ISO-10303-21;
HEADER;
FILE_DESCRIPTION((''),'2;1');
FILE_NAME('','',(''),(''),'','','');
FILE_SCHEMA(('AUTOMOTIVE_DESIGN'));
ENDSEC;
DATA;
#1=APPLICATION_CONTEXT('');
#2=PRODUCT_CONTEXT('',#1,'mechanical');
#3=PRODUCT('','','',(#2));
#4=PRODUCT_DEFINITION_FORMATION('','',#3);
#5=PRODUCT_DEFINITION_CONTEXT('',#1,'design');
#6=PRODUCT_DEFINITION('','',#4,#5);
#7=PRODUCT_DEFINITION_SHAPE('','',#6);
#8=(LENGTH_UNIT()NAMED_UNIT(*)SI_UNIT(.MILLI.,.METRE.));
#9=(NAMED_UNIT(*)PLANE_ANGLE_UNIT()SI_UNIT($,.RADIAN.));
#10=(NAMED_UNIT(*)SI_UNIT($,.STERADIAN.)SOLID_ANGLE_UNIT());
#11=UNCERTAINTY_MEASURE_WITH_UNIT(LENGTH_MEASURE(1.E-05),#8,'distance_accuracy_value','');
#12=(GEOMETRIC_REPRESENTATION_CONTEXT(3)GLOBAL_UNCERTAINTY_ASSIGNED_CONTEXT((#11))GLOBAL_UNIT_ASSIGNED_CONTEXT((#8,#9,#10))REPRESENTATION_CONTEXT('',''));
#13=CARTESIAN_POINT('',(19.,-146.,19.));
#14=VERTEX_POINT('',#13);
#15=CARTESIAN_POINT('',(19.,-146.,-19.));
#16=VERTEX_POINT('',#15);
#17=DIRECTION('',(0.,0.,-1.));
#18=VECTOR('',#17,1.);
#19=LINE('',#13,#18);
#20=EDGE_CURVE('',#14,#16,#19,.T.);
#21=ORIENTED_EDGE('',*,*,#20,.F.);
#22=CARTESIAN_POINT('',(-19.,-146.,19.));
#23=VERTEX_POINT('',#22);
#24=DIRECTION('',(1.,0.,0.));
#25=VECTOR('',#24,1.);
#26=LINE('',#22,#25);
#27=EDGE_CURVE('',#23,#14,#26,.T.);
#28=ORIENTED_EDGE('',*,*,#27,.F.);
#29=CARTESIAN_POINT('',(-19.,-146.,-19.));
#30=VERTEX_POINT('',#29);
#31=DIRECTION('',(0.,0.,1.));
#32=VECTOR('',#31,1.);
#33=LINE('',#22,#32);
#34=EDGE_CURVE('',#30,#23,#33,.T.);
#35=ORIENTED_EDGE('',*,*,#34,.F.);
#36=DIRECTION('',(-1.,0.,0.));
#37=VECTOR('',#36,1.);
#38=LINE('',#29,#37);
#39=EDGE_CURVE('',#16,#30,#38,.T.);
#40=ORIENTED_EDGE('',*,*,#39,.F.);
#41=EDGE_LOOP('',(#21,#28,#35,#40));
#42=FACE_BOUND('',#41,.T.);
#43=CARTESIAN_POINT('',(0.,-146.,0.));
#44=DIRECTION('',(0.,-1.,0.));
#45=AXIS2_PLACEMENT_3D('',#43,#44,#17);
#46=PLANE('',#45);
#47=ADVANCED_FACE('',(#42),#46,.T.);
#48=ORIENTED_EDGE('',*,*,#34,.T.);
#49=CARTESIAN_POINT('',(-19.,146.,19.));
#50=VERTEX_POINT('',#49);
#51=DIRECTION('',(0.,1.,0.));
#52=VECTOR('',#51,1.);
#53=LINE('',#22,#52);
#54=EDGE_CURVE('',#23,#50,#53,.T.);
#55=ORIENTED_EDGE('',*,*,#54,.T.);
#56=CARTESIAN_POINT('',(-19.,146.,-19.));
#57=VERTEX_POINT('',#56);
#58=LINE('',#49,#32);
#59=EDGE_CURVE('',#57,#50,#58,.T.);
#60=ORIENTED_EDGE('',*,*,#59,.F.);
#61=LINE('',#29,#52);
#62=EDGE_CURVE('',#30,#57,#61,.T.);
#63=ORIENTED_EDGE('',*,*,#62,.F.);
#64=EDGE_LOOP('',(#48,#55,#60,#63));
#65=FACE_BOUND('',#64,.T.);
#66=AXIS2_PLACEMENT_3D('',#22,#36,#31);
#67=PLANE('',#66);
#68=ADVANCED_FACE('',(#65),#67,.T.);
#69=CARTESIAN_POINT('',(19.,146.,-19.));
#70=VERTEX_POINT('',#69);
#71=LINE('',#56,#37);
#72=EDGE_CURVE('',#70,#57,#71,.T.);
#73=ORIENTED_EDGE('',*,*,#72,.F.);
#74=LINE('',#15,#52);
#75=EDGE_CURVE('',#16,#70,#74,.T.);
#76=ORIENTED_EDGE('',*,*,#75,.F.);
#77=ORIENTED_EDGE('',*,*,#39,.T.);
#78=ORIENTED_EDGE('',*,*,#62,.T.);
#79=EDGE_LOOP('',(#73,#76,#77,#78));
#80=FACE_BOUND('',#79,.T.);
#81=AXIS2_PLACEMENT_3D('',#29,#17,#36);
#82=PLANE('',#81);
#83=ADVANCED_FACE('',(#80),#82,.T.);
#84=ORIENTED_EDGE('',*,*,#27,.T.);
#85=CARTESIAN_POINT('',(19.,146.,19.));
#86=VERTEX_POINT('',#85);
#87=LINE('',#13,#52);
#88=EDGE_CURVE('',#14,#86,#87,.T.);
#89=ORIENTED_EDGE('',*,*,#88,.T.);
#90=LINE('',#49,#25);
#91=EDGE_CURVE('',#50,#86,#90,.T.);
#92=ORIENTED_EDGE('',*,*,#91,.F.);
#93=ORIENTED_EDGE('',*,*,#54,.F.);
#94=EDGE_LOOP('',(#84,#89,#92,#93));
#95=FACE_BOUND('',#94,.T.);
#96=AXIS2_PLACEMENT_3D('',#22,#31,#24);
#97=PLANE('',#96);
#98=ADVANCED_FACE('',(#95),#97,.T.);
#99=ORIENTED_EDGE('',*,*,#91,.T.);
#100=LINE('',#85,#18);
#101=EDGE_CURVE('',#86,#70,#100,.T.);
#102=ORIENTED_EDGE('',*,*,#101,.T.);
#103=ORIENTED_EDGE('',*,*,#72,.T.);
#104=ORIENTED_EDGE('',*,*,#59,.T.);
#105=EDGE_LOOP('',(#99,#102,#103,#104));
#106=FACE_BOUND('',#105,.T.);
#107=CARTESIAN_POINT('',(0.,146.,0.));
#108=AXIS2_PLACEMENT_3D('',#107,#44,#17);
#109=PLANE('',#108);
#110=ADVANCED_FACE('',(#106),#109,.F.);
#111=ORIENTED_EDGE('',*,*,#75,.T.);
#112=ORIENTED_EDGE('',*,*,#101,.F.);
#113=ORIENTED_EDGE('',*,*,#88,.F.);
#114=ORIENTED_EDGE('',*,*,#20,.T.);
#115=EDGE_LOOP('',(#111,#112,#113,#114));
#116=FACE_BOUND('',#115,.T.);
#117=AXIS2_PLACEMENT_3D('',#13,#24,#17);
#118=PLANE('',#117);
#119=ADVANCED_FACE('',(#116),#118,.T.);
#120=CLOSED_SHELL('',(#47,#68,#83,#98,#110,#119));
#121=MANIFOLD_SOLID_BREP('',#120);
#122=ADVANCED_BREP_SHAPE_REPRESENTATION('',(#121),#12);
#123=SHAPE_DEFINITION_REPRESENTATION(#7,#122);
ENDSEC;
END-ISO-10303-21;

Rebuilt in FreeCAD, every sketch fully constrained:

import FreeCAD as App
import Part
import Sketcher

V = App.Vector

doc = App.newDocument("Part")
body = doc.addObject("PartDesign::Body", "Body")

sketch1 = body.newObject("Sketcher::SketchObject", "Sketch")
sketch1.AttachmentSupport = (doc.getObject("XZ_Plane"), [""])
sketch1.MapMode = "FlatFace"
sketch1.addGeometry(Part.LineSegment(V(-19, -19, 0), V(-19, 19, 0)), False)
sketch1.addGeometry(Part.LineSegment(V(-19, 19, 0), V(19, 19, 0)), False)
sketch1.addGeometry(Part.LineSegment(V(19, 19, 0), V(19, -19, 0)), False)
sketch1.addGeometry(Part.LineSegment(V(19, -19, 0), V(-19, -19, 0)), False)
sketch1.addConstraint(Sketcher.Constraint("Coincident", 0, 2, 1, 1))
sketch1.addConstraint(Sketcher.Constraint("Coincident", 1, 2, 2, 1))
sketch1.addConstraint(Sketcher.Constraint("Coincident", 2, 2, 3, 1))
sketch1.addConstraint(Sketcher.Constraint("Coincident", 3, 2, 0, 1))
sketch1.addConstraint(Sketcher.Constraint("Vertical", 0))
sketch1.addConstraint(Sketcher.Constraint("Horizontal", 1))
sketch1.addConstraint(Sketcher.Constraint("Vertical", 2))
sketch1.addConstraint(Sketcher.Constraint("Horizontal", 3))
sketch1.addConstraint(Sketcher.Constraint("Symmetric", 0, 2, 2, 2, -1, 1))
sketch1.addConstraint(Sketcher.Constraint("Equal", 3, 0))
sketch1.addConstraint(Sketcher.Constraint("DistanceX", 1, 1, 1, 2, 38.0))
pad1 = body.newObject("PartDesign::Pad", "Pad")
pad1.Profile = sketch1
pad1.Type = "TwoLengths"
pad1.Length = 146
pad1.Length2 = 146
pad1.Reversed = True

doc.recompute()
